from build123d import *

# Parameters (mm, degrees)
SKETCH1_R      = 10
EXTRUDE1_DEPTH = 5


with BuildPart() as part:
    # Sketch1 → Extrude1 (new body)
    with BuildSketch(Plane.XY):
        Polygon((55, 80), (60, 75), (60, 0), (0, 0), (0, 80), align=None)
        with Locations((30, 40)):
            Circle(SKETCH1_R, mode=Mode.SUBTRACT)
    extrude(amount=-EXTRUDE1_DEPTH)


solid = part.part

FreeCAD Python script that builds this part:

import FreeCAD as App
import Part
import Sketcher

doc = App.newDocument("Part")
body = doc.addObject("PartDesign::Body", "Body")

sketch1 = body.newObject("Sketcher::SketchObject", "Sketch")
sketch1.AttachmentSupport = (doc.getObject("XY_Plane"), [""])
sketch1.MapMode = "FlatFace"
sketch1.addGeometry(Part.LineSegment(App.Vector(60, 75, 0), App.Vector(55, 80, 0)), False)
sketch1.addGeometry(Part.LineSegment(App.Vector(55, 80, 0), App.Vector(0, 80, 0)), False)
sketch1.addGeometry(Part.LineSegment(App.Vector(0, 80, 0), App.Vector(0, 0, 0)), False)
sketch1.addGeometry(Part.LineSegment(App.Vector(0, 0, 0), App.Vector(60, 0, 0)), False)
sketch1.addGeometry(Part.LineSegment(App.Vector(60, 0, 0), App.Vector(60, 75, 0)), False)
sketch1.addGeometry(Part.Circle(App.Vector(30, 40, 0), App.Vector(0, 0, 1), 10), False)
sketch1.addConstraint(Sketcher.Constraint("Coincident", 0, 2, 1, 1))
sketch1.addConstraint(Sketcher.Constraint("Coincident", 1, 2, 2, 1))
sketch1.addConstraint(Sketcher.Constraint("Coincident", 2, 2, 3, 1))
sketch1.addConstraint(Sketcher.Constraint("Coincident", 3, 2, 4, 1))
sketch1.addConstraint(Sketcher.Constraint("Coincident", 4, 2, 0, 1))
sketch1.addConstraint(Sketcher.Constraint("Horizontal", 1))
sketch1.addConstraint(Sketcher.Constraint("Vertical", 2))
sketch1.addConstraint(Sketcher.Constraint("Horizontal", 3))
sketch1.addConstraint(Sketcher.Constraint("Vertical", 4))
sketch1.addConstraint(Sketcher.Constraint("Coincident", 2, 2, -1, 1))
sketch1.addConstraint(Sketcher.Constraint("Diameter", 5, 20.0))
sketch1.addConstraint(Sketcher.Constraint("DistanceX", 1, 2, 1, 1, 55.0))
sketch1.addConstraint(Sketcher.Constraint("DistanceX", 3, 1, 3, 2, 60.0))
sketch1.addConstraint(Sketcher.Constraint("DistanceY", 2, 2, 2, 1, 80.0))
sketch1.addConstraint(Sketcher.Constraint("DistanceY", 4, 1, 4, 2, 75.0))
sketch1.addConstraint(Sketcher.Constraint("DistanceX", -1, 1, 5, 3, 30.0))
sketch1.addConstraint(Sketcher.Constraint("DistanceY", -1, 1, 5, 3, 40.0))
pad1 = body.newObject("PartDesign::Pad", "Pad")
pad1.Profile = sketch1
pad1.Length = 5
pad1.Reversed = True

doc.recompute()
